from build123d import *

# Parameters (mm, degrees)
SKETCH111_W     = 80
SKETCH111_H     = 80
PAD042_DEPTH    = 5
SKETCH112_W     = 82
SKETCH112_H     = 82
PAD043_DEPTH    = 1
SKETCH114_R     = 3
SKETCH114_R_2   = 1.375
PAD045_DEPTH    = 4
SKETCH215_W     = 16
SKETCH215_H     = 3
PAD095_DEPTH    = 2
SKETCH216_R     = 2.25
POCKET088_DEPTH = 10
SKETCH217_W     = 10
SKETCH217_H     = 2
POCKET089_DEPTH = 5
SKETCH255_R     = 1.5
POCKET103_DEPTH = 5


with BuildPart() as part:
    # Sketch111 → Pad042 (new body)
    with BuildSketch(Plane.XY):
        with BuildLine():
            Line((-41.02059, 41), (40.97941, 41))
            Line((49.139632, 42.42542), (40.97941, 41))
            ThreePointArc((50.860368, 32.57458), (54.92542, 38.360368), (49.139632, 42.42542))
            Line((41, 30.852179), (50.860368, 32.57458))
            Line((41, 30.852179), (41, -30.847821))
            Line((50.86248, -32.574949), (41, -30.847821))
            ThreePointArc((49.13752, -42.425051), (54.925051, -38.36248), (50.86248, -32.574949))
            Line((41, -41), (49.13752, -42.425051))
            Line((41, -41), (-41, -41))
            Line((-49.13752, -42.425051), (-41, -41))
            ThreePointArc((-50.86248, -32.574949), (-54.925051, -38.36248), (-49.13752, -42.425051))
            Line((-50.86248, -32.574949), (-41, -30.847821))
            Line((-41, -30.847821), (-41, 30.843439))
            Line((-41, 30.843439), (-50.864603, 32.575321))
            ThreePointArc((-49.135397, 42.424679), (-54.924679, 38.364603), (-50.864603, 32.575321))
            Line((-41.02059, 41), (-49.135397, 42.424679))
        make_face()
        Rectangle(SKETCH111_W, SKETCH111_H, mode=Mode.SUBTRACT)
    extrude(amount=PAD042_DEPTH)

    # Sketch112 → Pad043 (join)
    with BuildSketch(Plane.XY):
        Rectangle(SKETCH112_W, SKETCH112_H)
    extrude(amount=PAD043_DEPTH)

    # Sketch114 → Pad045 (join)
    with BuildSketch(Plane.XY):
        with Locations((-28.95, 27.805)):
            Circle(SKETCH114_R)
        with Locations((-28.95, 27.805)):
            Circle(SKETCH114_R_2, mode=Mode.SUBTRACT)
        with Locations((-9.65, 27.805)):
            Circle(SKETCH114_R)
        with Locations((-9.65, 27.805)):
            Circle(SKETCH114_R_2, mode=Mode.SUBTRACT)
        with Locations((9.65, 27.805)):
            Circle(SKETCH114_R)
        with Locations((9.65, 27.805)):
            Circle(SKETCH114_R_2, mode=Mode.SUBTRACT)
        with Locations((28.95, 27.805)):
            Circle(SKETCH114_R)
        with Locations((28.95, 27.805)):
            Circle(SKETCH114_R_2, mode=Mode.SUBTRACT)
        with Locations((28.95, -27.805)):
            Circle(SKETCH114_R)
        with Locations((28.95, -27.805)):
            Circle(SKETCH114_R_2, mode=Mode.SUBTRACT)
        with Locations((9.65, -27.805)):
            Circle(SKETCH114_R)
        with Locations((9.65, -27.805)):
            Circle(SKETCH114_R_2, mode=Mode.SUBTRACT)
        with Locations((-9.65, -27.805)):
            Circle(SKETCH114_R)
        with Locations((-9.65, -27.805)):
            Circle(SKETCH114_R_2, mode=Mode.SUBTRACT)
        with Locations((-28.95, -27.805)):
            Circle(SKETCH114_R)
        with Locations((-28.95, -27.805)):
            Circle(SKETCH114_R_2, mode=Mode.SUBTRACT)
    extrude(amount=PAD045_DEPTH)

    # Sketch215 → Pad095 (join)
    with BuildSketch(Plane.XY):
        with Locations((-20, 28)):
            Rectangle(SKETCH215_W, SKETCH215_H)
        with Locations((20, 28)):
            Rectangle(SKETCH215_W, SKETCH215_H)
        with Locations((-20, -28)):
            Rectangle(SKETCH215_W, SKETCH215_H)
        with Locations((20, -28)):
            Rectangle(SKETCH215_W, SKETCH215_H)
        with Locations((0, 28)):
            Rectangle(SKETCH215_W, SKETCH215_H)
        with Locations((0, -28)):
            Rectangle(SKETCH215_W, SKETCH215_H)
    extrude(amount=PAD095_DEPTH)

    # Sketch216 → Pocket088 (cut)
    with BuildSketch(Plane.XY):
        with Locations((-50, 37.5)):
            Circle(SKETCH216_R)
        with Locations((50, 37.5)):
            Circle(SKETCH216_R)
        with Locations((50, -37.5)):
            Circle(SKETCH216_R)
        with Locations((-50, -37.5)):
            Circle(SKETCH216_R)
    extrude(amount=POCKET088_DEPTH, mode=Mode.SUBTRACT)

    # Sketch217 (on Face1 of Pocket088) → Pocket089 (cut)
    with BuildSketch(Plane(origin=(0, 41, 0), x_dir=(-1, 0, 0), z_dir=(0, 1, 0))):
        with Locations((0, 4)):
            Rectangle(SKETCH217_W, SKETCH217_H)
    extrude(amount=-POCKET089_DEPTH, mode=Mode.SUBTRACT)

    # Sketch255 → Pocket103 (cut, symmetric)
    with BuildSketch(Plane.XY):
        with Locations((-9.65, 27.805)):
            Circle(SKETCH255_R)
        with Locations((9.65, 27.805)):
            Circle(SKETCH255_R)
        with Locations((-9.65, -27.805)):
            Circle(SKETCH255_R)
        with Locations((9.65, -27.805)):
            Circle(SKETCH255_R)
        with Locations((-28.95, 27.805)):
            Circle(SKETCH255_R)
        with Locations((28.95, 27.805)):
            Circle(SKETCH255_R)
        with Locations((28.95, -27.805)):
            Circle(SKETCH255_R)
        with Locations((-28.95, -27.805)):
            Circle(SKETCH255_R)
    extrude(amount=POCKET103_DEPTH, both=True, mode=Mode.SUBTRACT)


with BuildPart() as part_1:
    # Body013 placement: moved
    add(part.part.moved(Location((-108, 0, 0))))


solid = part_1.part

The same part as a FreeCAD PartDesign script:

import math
import FreeCAD as App
import Part
import Sketcher


def add_polygon(sketch, points):
    """Adds a closed chain of lines whose ends are joined by coincident constraints."""
    first, n = sketch.GeometryCount, len(points)
    for a, b in zip(points, points[1:] + points[:1]):
        sketch.addGeometry(Part.LineSegment(App.Vector(*a, 0), App.Vector(*b, 0)), False)
    for i in range(n):
        sketch.addConstraint(Sketcher.Constraint("Coincident", first + i, 2, first + (i + 1) % n, 1))

doc = App.newDocument("Part")
body = doc.addObject("PartDesign::Body", "Body")

sketch1 = doc.addObject("Sketcher::SketchObject", "Sketch")
body.addObject(sketch1)
sketch1.AttachmentSupport = (doc.XY_Plane, [""])
sketch1.MapMode = "FlatFace"
sketch1.addGeometry(Part.LineSegment(App.Vector(40.97941, 41, 0), App.Vector(-41.02059, 41, 0)), False)
sketch1.addGeometry(Part.LineSegment(App.Vector(-41.02059, 41, 0), App.Vector(-49.135397, 42.424679, 0)), False)
sketch1.addGeometry(Part.ArcOfCircle(Part.Circle(App.Vector(-50, 37.5, 0), App.Vector(0, 0, 1), 5), math.radians(80.042328), math.radians(260.042328)), False)
sketch1.addGeometry(Part.LineSegment(App.Vector(-50.864603, 32.575321, 0), App.Vector(-41, 30.843439, 0)), False)
sketch1.addGeometry(Part.LineSegment(App.Vector(-41, 30.843439, 0), App.Vector(-41, -30.847821, 0)), False)
sketch1.addGeometry(Part.LineSegment(App.Vector(-41, -30.847821, 0), App.Vector(-50.86248, -32.574949, 0)), False)
sketch1.addGeometry(Part.ArcOfCircle(Part.Circle(App.Vector(-50, -37.5, 0), App.Vector(0, 0, 1), 5), math.radians(99.932974), math.radians(279.932974)), False)
sketch1.addGeometry(Part.LineSegment(App.Vector(-49.13752, -42.425051, 0), App.Vector(-41, -41, 0)), False)
sketch1.addGeometry(Part.LineSegment(App.Vector(-41, -41, 0), App.Vector(41, -41, 0)), False)
sketch1.addGeometry(Part.LineSegment(App.Vector(41, -41, 0), App.Vector(49.13752, -42.425051, 0)), False)
sketch1.addGeometry(Part.ArcOfCircle(Part.Circle(App.Vector(50, -37.5, 0), App.Vector(0, 0, 1), 5), math.radians(-99.932974), math.radians(80.067026)), False)
sketch1.addGeometry(Part.LineSegment(App.Vector(50.86248, -32.574949, 0), App.Vector(41, -30.847821, 0)), False)
sketch1.addGeometry(Part.LineSegment(App.Vector(41, -30.847821, 0), App.Vector(41, 30.852179, 0)), False)
sketch1.addGeometry(Part.LineSegment(App.Vector(41, 30.852179, 0), App.Vector(50.860368, 32.57458, 0)), False)
sketch1.addGeometry(Part.ArcOfCircle(Part.Circle(App.Vector(50, 37.5, 0), App.Vector(0, 0, 1), 5), math.radians(-80.091595), math.radians(99.908405)), False)
sketch1.addGeometry(Part.LineSegment(App.Vector(49.139632, 42.42542, 0), App.Vector(40.97941, 41, 0)), False)
add_polygon(sketch1, [(-40, -40), (-40, 40), (40, 40), (40, -40)])
sketch1.addConstraint([
    Sketcher.Constraint("Coincident", 0, 2, 1, 1),
    Sketcher.Constraint("Tangent", 1, 2, 2, 1),
    Sketcher.Constraint("Tangent", 2, 2, 3, 1),
    Sketcher.Constraint("Coincident", 3, 2, 4, 1),
    Sketcher.Constraint("Coincident", 4, 2, 5, 1),
    Sketcher.Constraint("Tangent", 5, 2, 6, 1),
    Sketcher.Constraint("Tangent", 6, 2, 7, 1),
    Sketcher.Constraint("Coincident", 7, 2, 8, 1),
    Sketcher.Constraint("Coincident", 8, 2, 9, 1),
    Sketcher.Constraint("Tangent", 9, 2, 10, 1),
    Sketcher.Constraint("Tangent", 10, 2, 11, 1),
    Sketcher.Constraint("Coincident", 11, 2, 12, 1),
    Sketcher.Constraint("Coincident", 12, 2, 13, 1),
    Sketcher.Constraint("Tangent", 13, 2, 14, 1),
    Sketcher.Constraint("Tangent", 14, 2, 15, 1),
    Sketcher.Constraint("Coincident", 15, 2, 0, 1),
    Sketcher.Constraint("Horizontal", 0),
    Sketcher.Constraint("Vertical", 4),
    Sketcher.Constraint("Horizontal", 8),
    Sketcher.Constraint("Vertical", 12),
    Sketcher.Constraint("Vertical", 16),
    Sketcher.Constraint("Horizontal", 17),
    Sketcher.Constraint("Vertical", 18),
    Sketcher.Constraint("Horizontal", 19),
    Sketcher.Constraint("Equal", 2, 6),
    Sketcher.Constraint("Equal", 6, 10),
    Sketcher.Constraint("Equal", 10, 14),
    Sketcher.Constraint("Symmetric", 2, 3, 10, 3, -1, 1),
    Sketcher.Constraint("Symmetric", 6, 3, 14, 3, -1, 1),
    Sketcher.Constraint("Symmetric", 16, 2, 18, 2, -1, 1),
    Sketcher.Constraint("Symmetric", 6, 3, 10, 3, -2),
    Sketcher.Constraint("Symmetric", 4, 2, 11, 2, -2),
    Sketcher.Constraint("Parallel", 1, 3),
    Sketcher.Constraint("Parallel", 5, 7),
    Sketcher.Constraint("Parallel", 9, 11),
    Sketcher.Constraint("Parallel", 13, 15),
    Sketcher.Constraint("Vertical", 4, 2, 7, 2),
    Sketcher.Constraint("Equal", 0, 8),
    Sketcher.Constraint("Equal", 19, 16),
    Sketcher.Constraint("Radius", 2, 5.0),
    Sketcher.Constraint("DistanceX", 0, 2, 0, 1, 82.0),
    Sketcher.Constraint("DistanceX", 17, 1, 17, 2, 80.0),
    Sketcher.Constraint("DistanceY", 12, 1, 12, 2, 61.7),
    Sketcher.Constraint("DistanceX", 2, 3, -1, 1, 50.0),
    Sketcher.Constraint("DistanceY", -1, 1, 0, 2, 41.0),
    Sketcher.Constraint("DistanceY", 7, 2, -1, 1, 41.0),
    Sketcher.Constraint("DistanceY", 6, 3, 2, 3, 75.0),
])
pad1 = doc.addObject("PartDesign::Pad", "Pad")
body.addObject(pad1)
pad1.Profile = sketch1
pad1.Length = 5

sketch2 = doc.addObject("Sketcher::SketchObject", "Sketch001")
body.addObject(sketch2)
sketch2.AttachmentSupport = (doc.XY_Plane, [""])
sketch2.MapMode = "FlatFace"
add_polygon(sketch2, [(-41, 41), (-41, -41), (41, -41), (41, 41)])
sketch2.addConstraint([
    Sketcher.Constraint("Vertical", 0),
    Sketcher.Constraint("Horizontal", 1),
    Sketcher.Constraint("Vertical", 2),
    Sketcher.Constraint("Horizontal", 3),
    Sketcher.Constraint("Symmetric", 0, 2, 2, 2, -1, 1),
    Sketcher.Constraint("Equal", 3, 0),
    Sketcher.Constraint("DistanceX", 1, 1, 1, 2, 82.0),
])
pad2 = doc.addObject("PartDesign::Pad", "Pad001")
body.addObject(pad2)
pad2.Profile = sketch2
pad2.Length = 1

sketch3 = doc.addObject("Sketcher::SketchObject", "Sketch002")
body.addObject(sketch3)
sketch3.AttachmentSupport = (doc.XY_Plane, [""])
sketch3.MapMode = "FlatFace"
sketch3.addGeometry([
    Part.Circle(App.Vector(-28.95, 27.805, 0), App.Vector(0, 0, 1), 3),
    Part.Circle(App.Vector(-28.95, 27.805, 0), App.Vector(0, 0, 1), 1.375),
    Part.Circle(App.Vector(-9.65, 27.805, 0), App.Vector(0, 0, 1), 3),
    Part.Circle(App.Vector(-9.65, 27.805, 0), App.Vector(0, 0, 1), 1.375),
    Part.Circle(App.Vector(9.65, 27.805, 0), App.Vector(0, 0, 1), 3),
    Part.Circle(App.Vector(9.65, 27.805, 0), App.Vector(0, 0, 1), 1.375),
    Part.Circle(App.Vector(28.95, 27.805, 0), App.Vector(0, 0, 1), 3),
    Part.Circle(App.Vector(28.95, 27.805, 0), App.Vector(0, 0, 1), 1.375),
    Part.Circle(App.Vector(28.95, -27.805, 0), App.Vector(0, 0, 1), 3),
    Part.Circle(App.Vector(28.95, -27.805, 0), App.Vector(0, 0, 1), 1.375),
    Part.Circle(App.Vector(9.65, -27.805, 0), App.Vector(0, 0, 1), 3),
    Part.Circle(App.Vector(9.65, -27.805, 0), App.Vector(0, 0, 1), 1.375),
    Part.Circle(App.Vector(-9.65, -27.805, 0), App.Vector(0, 0, 1), 3),
    Part.Circle(App.Vector(-9.65, -27.805, 0), App.Vector(0, 0, 1), 1.375),
    Part.Circle(App.Vector(-28.95, -27.805, 0), App.Vector(0, 0, 1), 3),
    Part.Circle(App.Vector(-28.95, -27.805, 0), App.Vector(0, 0, 1), 1.375),
], False)
sketch3.addConstraint([
    Sketcher.Constraint("Coincident", 1, 3, 0, 3),
    Sketcher.Constraint("Coincident", 3, 3, 2, 3),
    Sketcher.Constraint("Coincident", 5, 3, 4, 3),
    Sketcher.Constraint("Coincident", 7, 3, 6, 3),
    Sketcher.Constraint("Coincident", 9, 3, 8, 3),
    Sketcher.Constraint("Coincident", 11, 3, 10, 3),
    Sketcher.Constraint("Coincident", 13, 3, 12, 3),
    Sketcher.Constraint("Coincident", 15, 3, 14, 3),
    Sketcher.Constraint("Equal", 0, 2),
    Sketcher.Constraint("Equal", 1, 3),
    Sketcher.Constraint("Equal", 2, 4),
    Sketcher.Constraint("Equal", 3, 5),
    Sketcher.Constraint("Equal", 4, 6),
    Sketcher.Constraint("Equal", 5, 7),
    Sketcher.Constraint("Equal", 6, 8),
    Sketcher.Constraint("Equal", 7, 9),
    Sketcher.Constraint("Equal", 8, 10),
    Sketcher.Constraint("Equal", 9, 11),
    Sketcher.Constraint("Equal", 10, 12),
    Sketcher.Constraint("Equal", 11, 13),
    Sketcher.Constraint("Equal", 12, 14),
    Sketcher.Constraint("Equal", 13, 15),
    Sketcher.Constraint("Symmetric", 0, 3, 8, 3, -1, 1),
    Sketcher.Constraint("Symmetric", 2, 3, 10, 3, -1, 1),
    Sketcher.Constraint("Symmetric", 4, 3, 12, 3, -1, 1),
    Sketcher.Constraint("Symmetric", 6, 3, 14, 3, -1, 1),
    Sketcher.Constraint("Symmetric", 2, 3, 4, 3, -2),
    Sketcher.Constraint("Symmetric", 0, 3, 6, 3, -2),
    Sketcher.Constraint("Horizontal", 1, 3, 2, 3),
    Sketcher.Constraint("Diameter", 0, 6.0),
    Sketcher.Constraint("Diameter", 1, 2.75),
    Sketcher.Constraint("DistanceX", 0, 3, 2, 3, 19.3),
    Sketcher.Constraint("DistanceX", 2, 3, 4, 3, 19.3),
    Sketcher.Constraint("DistanceY", 8, 3, 6, 3, 55.61),
])
pad3 = doc.addObject("PartDesign::Pad", "Pad002")
body.addObject(pad3)
pad3.Profile = sketch3
pad3.Length = 4

sketch4 = doc.addObject("Sketcher::SketchObject", "Sketch003")
body.addObject(sketch4)
sketch4.AttachmentSupport = (doc.XY_Plane, [""])
sketch4.MapMode = "FlatFace"
add_polygon(sketch4, [(-28, 29.5), (-28, 26.5), (-12, 26.5), (-12, 29.5)])
add_polygon(sketch4, [(12, 29.5), (12, 26.5), (28, 26.5), (28, 29.5)])
add_polygon(sketch4, [(-28, -26.5), (-28, -29.5), (-12, -29.5), (-12, -26.5)])
add_polygon(sketch4, [(12, -26.5), (12, -29.5), (28, -29.5), (28, -26.5)])
add_polygon(sketch4, [(-8, 29.5), (-8, 26.5), (8, 26.5), (8, 29.5)])
add_polygon(sketch4, [(-8, -26.5), (-8, -29.5), (8, -29.5), (8, -26.5)])
sketch4.addConstraint([
    Sketcher.Constraint("Vertical", 0),
    Sketcher.Constraint("Horizontal", 1),
    Sketcher.Constraint("Vertical", 2),
    Sketcher.Constraint("Horizontal", 3),
    Sketcher.Constraint("Vertical", 4),
    Sketcher.Constraint("Horizontal", 5),
    Sketcher.Constraint("Vertical", 6),
    Sketcher.Constraint("Horizontal", 7),
    Sketcher.Constraint("Vertical", 8),
    Sketcher.Constraint("Horizontal", 9),
    Sketcher.Constraint("Vertical", 10),
    Sketcher.Constraint("Horizontal", 11),
    Sketcher.Constraint("Vertical", 12),
    Sketcher.Constraint("Horizontal", 13),
    Sketcher.Constraint("Vertical", 14),
    Sketcher.Constraint("Horizontal", 15),
    Sketcher.Constraint("Vertical", 16),
    Sketcher.Constraint("Horizontal", 17),
    Sketcher.Constraint("Vertical", 18),
    Sketcher.Constraint("Horizontal", 19),
    Sketcher.Constraint("Vertical", 20),
    Sketcher.Constraint("Horizontal", 21),
    Sketcher.Constraint("Vertical", 22),
    Sketcher.Constraint("Horizontal", 23),
    Sketcher.Constraint("Symmetric", 6, 2, 8, 2, -1, 1),
    Sketcher.Constraint("Symmetric", 4, 2, 10, 2, -1, 1),
    Sketcher.Constraint("Symmetric", 2, 2, 12, 2, -1, 1),
    Sketcher.Constraint("Symmetric", 0, 2, 14, 2, -1, 1),
    Sketcher.Constraint("Symmetric", 18, 2, 20, 2, -1, 1),
    Sketcher.Constraint("Symmetric", 16, 2, 22, 2, -1, 1),
    Sketcher.Constraint("Symmetric", 1, 2, 4, 2, -2),
    Sketcher.Constraint("Symmetric", 3, 2, 6, 2, -2),
    Sketcher.Constraint("Horizontal", 5, 2, 16, 2),
    Sketcher.Constraint("Horizontal", 7, 2, 18, 2),
    Sketcher.Constraint("Vertical", 19, 2, 20, 2),
    Sketcher.Constraint("Equal", 15, 17),
    Sketcher.Constraint("DistanceX", 1, 1, 1, 2, 16.0),
    Sketcher.Constraint("DistanceY", 0, 2, 0, 1, 3.0),
    Sketcher.Constraint("DistanceX", 0, 2, -1, 1, 28.0),
    Sketcher.Constraint("DistanceY", 8, 2, 0, 2, 56.0),
])
pad4 = doc.addObject("PartDesign::Pad", "Pad003")
body.addObject(pad4)
pad4.Profile = sketch4
pad4.Length = 2

sketch5 = doc.addObject("Sketcher::SketchObject", "Sketch004")
body.addObject(sketch5)
sketch5.AttachmentSupport = (doc.XY_Plane, [""])
sketch5.MapMode = "FlatFace"
sketch5.addGeometry([
    Part.Circle(App.Vector(-50, 37.5, 0), App.Vector(0, 0, 1), 2.25),
    Part.Circle(App.Vector(50, 37.5, 0), App.Vector(0, 0, 1), 2.25),
    Part.Circle(App.Vector(50, -37.5, 0), App.Vector(0, 0, 1), 2.25),
    Part.Circle(App.Vector(-50, -37.5, 0), App.Vector(0, 0, 1), 2.25),
], False)
sketch5.addConstraint([
    Sketcher.Constraint("Equal", 0, 1),
    Sketcher.Constraint("Equal", 1, 2),
    Sketcher.Constraint("Equal", 2, 3),
    Sketcher.Constraint("Symmetric", 0, 3, 2, 3, -1, 1),
    Sketcher.Constraint("Symmetric", 1, 3, 3, 3, -1, 1),
    Sketcher.Constraint("Symmetric", 0, 3, 1, 3, -2),
    Sketcher.Constraint("Diameter", 0, 4.5),
    Sketcher.Constraint("DistanceX", 0, 3, -1, 1, 50.0),
    Sketcher.Constraint("DistanceY", 2, 3, 1, 3, 75.0),
])
pocket1 = doc.addObject("PartDesign::Pocket", "Pocket")
body.addObject(pocket1)
pocket1.Profile = sketch5
pocket1.Length = 10
pocket1.Reversed = True

sketch6 = doc.addObject("Sketcher::SketchObject", "Sketch005")
body.addObject(sketch6)
sketch6.AttachmentSupport = (doc.XZ_Plane, [""])
sketch6.MapMode = "FlatFace"
sketch6.AttachmentOffset = App.Placement(App.Vector(0, 0, -41), App.Rotation())
add_polygon(sketch6, [(5, 5), (5, 3), (-5, 3), (-5, 5)])
sketch6.addConstraint([
    Sketcher.Constraint("Vertical", 0),
    Sketcher.Constraint("Horizontal", 1),
    Sketcher.Constraint("Vertical", 2),
    Sketcher.Constraint("Horizontal", 3),
    Sketcher.Constraint("DistanceX", 1, 2, 1, 1, 10.0),
    Sketcher.Constraint("DistanceY", 0, 2, 0, 1, 2.0),
    Sketcher.Constraint("DistanceX", -1, 1, 0, 2, 5.0),
    Sketcher.Constraint("DistanceY", -1, 1, 0, 2, 3.0),
])
pocket2 = doc.addObject("PartDesign::Pocket", "Pocket001")
body.addObject(pocket2)
pocket2.Profile = sketch6
pocket2.Length = 5
pocket2.Reversed = True

sketch7 = doc.addObject("Sketcher::SketchObject", "Sketch006")
body.addObject(sketch7)
sketch7.AttachmentSupport = (doc.XY_Plane, [""])
sketch7.MapMode = "FlatFace"
sketch7.addGeometry([
    Part.Circle(App.Vector(-9.65, 27.805, 0), App.Vector(0, 0, 1), 1.5),
    Part.Circle(App.Vector(9.65, 27.805, 0), App.Vector(0, 0, 1), 1.5),
    Part.Circle(App.Vector(-9.65, -27.805, 0), App.Vector(0, 0, 1), 1.5),
    Part.Circle(App.Vector(9.65, -27.805, 0), App.Vector(0, 0, 1), 1.5),
    Part.Circle(App.Vector(-28.95, 27.805, 0), App.Vector(0, 0, 1), 1.5),
    Part.Circle(App.Vector(28.95, 27.805, 0), App.Vector(0, 0, 1), 1.5),
    Part.Circle(App.Vector(28.95, -27.805, 0), App.Vector(0, 0, 1), 1.5),
    Part.Circle(App.Vector(-28.95, -27.805, 0), App.Vector(0, 0, 1), 1.5),
], False)
sketch7.addConstraint([
    Sketcher.Constraint("Equal", 0, 1),
    Sketcher.Constraint("Equal", 1, 2),
    Sketcher.Constraint("Equal", 2, 3),
    Sketcher.Constraint("Equal", 3, 4),
    Sketcher.Constraint("Equal", 4, 5),
    Sketcher.Constraint("Equal", 5, 6),
    Sketcher.Constraint("Equal", 6, 7),
    Sketcher.Constraint("Symmetric", 1, 3, 2, 3, -1, 1),
    Sketcher.Constraint("Symmetric", 0, 3, 3, 3, -1, 1),
    Sketcher.Constraint("Symmetric", 4, 3, 6, 3, -1, 1),
    Sketcher.Constraint("Symmetric", 5, 3, 7, 3, -1, 1),
    Sketcher.Constraint("Symmetric", 0, 3, 1, 3, -2),
    Sketcher.Constraint("Symmetric", 4, 3, 5, 3, -2),
    Sketcher.Constraint("Horizontal", 1, 3, 4, 3),
    Sketcher.Constraint("Diameter", 0, 3.0),
    Sketcher.Constraint("DistanceX", 0, 3, 1, 3, 19.3),
    Sketcher.Constraint("DistanceX", 4, 3, 0, 3, 19.3),
    Sketcher.Constraint("DistanceY", 2, 3, 0, 3, 55.61),
])
pocket3 = doc.addObject("PartDesign::Pocket", "Pocket002")
body.addObject(pocket3)
pocket3.Profile = sketch7
pocket3.Length = 10
pocket3.Midplane = True
body2 = doc.addObject("PartDesign::Body", "Body001")
doc.recompute()

body.Placement = App.Placement(App.Vector(-108, 0, 0), App.Rotation(App.Vector(0, 0, 1), 0))
boolean = doc.addObject("PartDesign::Boolean", "Boolean")
body2.addObject(boolean)
boolean.Type = "Fuse"
boolean.addObjects([body])

doc.recompute()
